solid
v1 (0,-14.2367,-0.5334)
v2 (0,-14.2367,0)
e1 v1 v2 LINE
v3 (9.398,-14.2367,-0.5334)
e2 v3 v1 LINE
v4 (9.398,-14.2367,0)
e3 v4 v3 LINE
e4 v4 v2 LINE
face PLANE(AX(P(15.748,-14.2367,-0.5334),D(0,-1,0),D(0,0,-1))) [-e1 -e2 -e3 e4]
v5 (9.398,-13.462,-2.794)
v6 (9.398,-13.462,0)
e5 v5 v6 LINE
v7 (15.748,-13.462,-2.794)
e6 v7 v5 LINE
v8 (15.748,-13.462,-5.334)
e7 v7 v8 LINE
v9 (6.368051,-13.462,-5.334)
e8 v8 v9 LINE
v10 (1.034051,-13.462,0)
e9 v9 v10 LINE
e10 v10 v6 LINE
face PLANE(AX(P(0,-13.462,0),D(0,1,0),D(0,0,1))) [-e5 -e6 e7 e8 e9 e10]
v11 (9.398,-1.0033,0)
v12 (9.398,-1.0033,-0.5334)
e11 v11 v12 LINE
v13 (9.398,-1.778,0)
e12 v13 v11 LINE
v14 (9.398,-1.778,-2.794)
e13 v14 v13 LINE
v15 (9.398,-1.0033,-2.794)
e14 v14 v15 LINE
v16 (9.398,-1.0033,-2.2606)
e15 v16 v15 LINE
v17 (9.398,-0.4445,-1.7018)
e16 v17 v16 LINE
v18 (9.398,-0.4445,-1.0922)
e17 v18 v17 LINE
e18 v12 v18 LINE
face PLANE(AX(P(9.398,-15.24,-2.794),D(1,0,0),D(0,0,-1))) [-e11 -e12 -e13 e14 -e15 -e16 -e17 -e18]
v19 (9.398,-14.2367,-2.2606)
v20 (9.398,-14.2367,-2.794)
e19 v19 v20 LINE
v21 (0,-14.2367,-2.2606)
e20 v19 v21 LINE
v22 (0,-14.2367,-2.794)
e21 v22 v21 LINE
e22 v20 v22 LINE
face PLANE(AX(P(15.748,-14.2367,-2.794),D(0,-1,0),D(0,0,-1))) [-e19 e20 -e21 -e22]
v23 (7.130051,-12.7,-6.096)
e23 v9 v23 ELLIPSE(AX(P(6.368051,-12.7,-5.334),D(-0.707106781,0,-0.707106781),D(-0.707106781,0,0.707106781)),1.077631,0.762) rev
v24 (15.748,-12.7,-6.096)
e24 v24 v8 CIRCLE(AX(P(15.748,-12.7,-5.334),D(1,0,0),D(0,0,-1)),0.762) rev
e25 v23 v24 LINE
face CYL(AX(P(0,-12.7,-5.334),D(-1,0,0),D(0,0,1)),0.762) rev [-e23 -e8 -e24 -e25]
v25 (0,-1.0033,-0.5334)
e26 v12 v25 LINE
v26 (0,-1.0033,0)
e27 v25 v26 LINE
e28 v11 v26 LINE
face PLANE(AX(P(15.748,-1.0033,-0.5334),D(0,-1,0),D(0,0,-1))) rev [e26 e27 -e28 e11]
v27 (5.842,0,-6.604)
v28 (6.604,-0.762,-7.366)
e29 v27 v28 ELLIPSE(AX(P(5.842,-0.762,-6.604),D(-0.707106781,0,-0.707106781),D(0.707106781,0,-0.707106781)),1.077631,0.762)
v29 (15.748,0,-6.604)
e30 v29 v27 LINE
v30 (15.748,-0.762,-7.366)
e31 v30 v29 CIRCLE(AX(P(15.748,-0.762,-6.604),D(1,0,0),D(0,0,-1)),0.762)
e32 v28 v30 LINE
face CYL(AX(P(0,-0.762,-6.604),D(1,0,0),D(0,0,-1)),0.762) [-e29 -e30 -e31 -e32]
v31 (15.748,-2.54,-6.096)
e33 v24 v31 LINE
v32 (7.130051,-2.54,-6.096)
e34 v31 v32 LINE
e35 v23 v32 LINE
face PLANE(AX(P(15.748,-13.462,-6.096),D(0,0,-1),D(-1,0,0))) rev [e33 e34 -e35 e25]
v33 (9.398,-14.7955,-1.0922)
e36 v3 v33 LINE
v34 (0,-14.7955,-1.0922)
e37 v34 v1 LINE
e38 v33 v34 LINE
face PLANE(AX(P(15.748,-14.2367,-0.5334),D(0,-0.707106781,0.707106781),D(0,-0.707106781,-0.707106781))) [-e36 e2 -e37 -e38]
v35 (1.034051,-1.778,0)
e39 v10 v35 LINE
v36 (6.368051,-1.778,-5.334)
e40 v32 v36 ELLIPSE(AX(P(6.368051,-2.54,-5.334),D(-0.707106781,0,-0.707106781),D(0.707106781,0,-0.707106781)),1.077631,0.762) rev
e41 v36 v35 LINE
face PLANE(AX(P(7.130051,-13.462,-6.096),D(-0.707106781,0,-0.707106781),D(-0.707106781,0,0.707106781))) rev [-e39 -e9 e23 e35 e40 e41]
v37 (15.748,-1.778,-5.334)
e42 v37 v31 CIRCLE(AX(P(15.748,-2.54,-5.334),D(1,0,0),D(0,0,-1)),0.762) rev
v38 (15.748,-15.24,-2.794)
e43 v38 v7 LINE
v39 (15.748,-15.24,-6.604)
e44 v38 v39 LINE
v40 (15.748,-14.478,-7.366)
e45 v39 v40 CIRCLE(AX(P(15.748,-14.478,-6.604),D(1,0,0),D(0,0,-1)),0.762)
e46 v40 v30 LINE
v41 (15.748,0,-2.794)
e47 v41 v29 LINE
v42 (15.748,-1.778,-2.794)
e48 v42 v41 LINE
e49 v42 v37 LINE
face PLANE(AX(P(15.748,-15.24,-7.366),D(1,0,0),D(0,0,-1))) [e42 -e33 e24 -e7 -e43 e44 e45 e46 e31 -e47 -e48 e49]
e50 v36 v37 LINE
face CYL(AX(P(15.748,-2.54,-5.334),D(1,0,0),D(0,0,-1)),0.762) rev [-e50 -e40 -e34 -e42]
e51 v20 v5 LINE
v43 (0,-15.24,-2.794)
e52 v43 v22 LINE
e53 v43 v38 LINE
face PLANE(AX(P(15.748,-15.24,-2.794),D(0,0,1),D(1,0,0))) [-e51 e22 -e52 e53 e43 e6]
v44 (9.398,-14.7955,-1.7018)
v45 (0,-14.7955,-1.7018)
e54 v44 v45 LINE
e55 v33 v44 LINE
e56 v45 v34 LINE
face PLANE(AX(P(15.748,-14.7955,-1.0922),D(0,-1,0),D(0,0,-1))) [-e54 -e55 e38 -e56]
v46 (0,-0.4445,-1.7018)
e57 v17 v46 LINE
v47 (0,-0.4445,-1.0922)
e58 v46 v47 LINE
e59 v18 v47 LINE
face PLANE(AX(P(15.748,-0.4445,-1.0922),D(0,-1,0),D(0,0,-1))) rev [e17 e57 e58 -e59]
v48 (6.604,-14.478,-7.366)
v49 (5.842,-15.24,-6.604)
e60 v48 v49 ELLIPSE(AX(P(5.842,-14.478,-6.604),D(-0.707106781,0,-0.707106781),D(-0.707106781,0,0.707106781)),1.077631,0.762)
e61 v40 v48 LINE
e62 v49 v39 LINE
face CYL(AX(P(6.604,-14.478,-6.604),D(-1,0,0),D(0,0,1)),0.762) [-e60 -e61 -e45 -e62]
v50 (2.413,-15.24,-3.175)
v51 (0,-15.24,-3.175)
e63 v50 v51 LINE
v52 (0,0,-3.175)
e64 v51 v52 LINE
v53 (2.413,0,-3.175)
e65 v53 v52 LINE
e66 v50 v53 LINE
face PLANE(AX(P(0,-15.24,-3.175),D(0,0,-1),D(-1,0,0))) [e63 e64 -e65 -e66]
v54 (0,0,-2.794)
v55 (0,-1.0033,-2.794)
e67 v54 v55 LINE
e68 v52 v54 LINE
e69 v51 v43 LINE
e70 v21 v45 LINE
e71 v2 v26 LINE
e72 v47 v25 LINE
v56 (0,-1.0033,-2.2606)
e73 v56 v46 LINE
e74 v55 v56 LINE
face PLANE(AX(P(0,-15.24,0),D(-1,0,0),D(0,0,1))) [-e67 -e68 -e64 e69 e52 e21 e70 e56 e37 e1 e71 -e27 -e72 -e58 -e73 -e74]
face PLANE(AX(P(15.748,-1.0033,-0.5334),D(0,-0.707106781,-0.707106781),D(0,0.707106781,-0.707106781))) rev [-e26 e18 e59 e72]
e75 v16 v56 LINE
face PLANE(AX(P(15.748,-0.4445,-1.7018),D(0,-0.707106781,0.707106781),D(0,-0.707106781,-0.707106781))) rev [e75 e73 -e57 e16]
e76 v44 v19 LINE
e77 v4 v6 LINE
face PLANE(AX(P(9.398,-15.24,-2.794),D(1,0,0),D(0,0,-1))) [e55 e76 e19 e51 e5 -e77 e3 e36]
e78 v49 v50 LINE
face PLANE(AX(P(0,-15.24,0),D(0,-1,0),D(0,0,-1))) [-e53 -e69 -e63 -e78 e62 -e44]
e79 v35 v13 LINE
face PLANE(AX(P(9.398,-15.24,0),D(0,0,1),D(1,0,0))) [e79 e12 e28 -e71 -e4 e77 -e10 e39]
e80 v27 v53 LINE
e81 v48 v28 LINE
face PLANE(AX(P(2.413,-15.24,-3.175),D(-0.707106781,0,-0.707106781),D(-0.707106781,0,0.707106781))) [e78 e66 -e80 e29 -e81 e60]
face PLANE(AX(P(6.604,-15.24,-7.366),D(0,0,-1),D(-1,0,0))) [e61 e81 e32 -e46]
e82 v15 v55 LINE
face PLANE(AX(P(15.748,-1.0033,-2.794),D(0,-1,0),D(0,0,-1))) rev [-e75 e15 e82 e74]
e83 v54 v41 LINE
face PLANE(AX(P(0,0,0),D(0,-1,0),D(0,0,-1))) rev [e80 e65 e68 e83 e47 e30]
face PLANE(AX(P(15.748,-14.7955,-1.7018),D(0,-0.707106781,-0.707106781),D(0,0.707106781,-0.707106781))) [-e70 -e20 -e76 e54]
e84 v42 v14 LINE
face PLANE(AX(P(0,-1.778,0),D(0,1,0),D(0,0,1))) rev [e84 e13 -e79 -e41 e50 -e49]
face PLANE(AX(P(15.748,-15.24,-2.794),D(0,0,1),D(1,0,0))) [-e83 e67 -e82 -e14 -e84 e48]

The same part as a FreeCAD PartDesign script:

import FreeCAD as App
import Part
import Sketcher
from FreeCAD import Vector
Q = App.Units.Quantity


def edges_at(feature, points):
    """Names of the edges that pass closest to the given points."""
    edges = feature.Shape.Edges
    near = lambda p: min(range(len(edges)), key=lambda i: edges[i].distToShape(Part.Vertex(*p))[0])
    return sorted({f"Edge{near(p) + 1}" for p in points})

doc = App.newDocument("Part")
body = doc.addObject("PartDesign::Body", "Body")

# Sketch on XZ plane
sketch1 = doc.addObject("Sketcher::SketchObject", "Sketch")
body.addObject(sketch1)
sketch1.AttachmentSupport = (doc.XZ_Plane, [""])
sketch1.MapMode = "FlatFace"
sketch1.addGeometry([
    Part.LineSegment(Vector(0, -3.2, 0), Vector(0, 0, 0)),  # 0
    Part.LineSegment(Vector(0, 0, 0), Vector(9.4, 0, 0)),  # 1
    Part.LineSegment(Vector(9.4, 0, 0), Vector(9.4, -2.8, 0)),  # 2
    Part.LineSegment(Vector(9.4, -2.8, 0), Vector(15.7, -2.8, 0)),  # 3
    Part.LineSegment(Vector(15.7, -2.8, 0), Vector(15.7, -7.4, 0)),  # 4
    Part.LineSegment(Vector(15.7, -7.4, 0), Vector(6.6, -7.4, 0)),  # 5
    Part.LineSegment(Vector(6.6, -7.4, 0), Vector(2.4, -3.2, 0)),  # 6
    Part.LineSegment(Vector(2.4, -3.2, 0), Vector(0, -3.2, 0)),  # 7
], False)
sketch1.addConstraint([
    Sketcher.Constraint("Coincident", 0, 2, 1, 1),
    Sketcher.Constraint("Coincident", 1, 2, 2, 1),
    Sketcher.Constraint("Coincident", 2, 2, 3, 1),
    Sketcher.Constraint("Coincident", 3, 2, 4, 1),
    Sketcher.Constraint("Coincident", 4, 2, 5, 1),
    Sketcher.Constraint("Coincident", 5, 2, 6, 1),
    Sketcher.Constraint("Coincident", 6, 2, 7, 1),
    Sketcher.Constraint("Coincident", 7, 2, 0, 1),
    Sketcher.Constraint("Vertical", 0),
    Sketcher.Constraint("Horizontal", 1),
    Sketcher.Constraint("Vertical", 2),
    Sketcher.Constraint("Horizontal", 3),
    Sketcher.Constraint("Vertical", 4),
    Sketcher.Constraint("Horizontal", 5),
    Sketcher.Constraint("Horizontal", 7),
    Sketcher.Constraint("Coincident", 0, 2, -1, 1),
    Sketcher.Constraint("Angle", 6, Q("135 deg")),
    Sketcher.Constraint("DistanceX", 1, 1, 1, 2, Q("0.37 in")),
    Sketcher.Constraint("DistanceX", 3, 1, 3, 2, Q("0.25 in")),
    Sketcher.Constraint("DistanceX", 5, 2, 5, 1, Q("0.36 in")),
    Sketcher.Constraint("DistanceY", 2, 2, 2, 1, Q("0.11 in")),
    Sketcher.Constraint("DistanceY", 4, 2, 4, 1, Q("0.18 in")),
    Sketcher.Constraint("DistanceX", 7, 2, 7, 1, Q("0.095 in")),
])
pad1 = doc.addObject("PartDesign::Pad", "Pad")
body.addObject(pad1)
pad1.Profile = sketch1
pad1.Length = Q("0.6 in")

# Sketch on YZ plane
sketch2 = doc.addObject("Sketcher::SketchObject", "Sketch001")
body.addObject(sketch2)
sketch2.AttachmentSupport = (doc.YZ_Plane, [""])
sketch2.MapMode = "FlatFace"
sketch2.addGeometry([
    Part.LineSegment(Vector(-1, 0, 0), Vector(0, 0, 0)),  # 0
    Part.LineSegment(Vector(0, 0, 0), Vector(0, -2.8, 0)),  # 1
    Part.LineSegment(Vector(0, -2.8, 0), Vector(-1, -2.8, 0)),  # 2
    Part.LineSegment(Vector(-1, -2.8, 0), Vector(-1, -2.3, 0)),  # 3
    Part.LineSegment(Vector(-1, -2.3, 0), Vector(-0.4, -1.7, 0)),  # 4
    Part.LineSegment(Vector(-0.4, -1.7, 0), Vector(-0.4, -1.1, 0)),  # 5
    Part.LineSegment(Vector(-0.4, -1.1, 0), Vector(-1, -0.5, 0)),  # 6
    Part.LineSegment(Vector(-1, -0.5, 0), Vector(-1, 0, 0)),  # 7
], False)
sketch2.addConstraint([
    Sketcher.Constraint("Coincident", 0, 2, 1, 1),
    Sketcher.Constraint("Coincident", 1, 2, 2, 1),
    Sketcher.Constraint("Coincident", 2, 2, 3, 1),
    Sketcher.Constraint("Coincident", 3, 2, 4, 1),
    Sketcher.Constraint("Coincident", 4, 2, 5, 1),
    Sketcher.Constraint("Coincident", 5, 2, 6, 1),
    Sketcher.Constraint("Coincident", 6, 2, 7, 1),
    Sketcher.Constraint("Coincident", 7, 2, 0, 1),
    Sketcher.Constraint("Horizontal", 0),
    Sketcher.Constraint("Vertical", 1),
    Sketcher.Constraint("Horizontal", 2),
    Sketcher.Constraint("Vertical", 3),
    Sketcher.Constraint("Vertical", 5),
    Sketcher.Constraint("Vertical", 7),
    Sketcher.Constraint("Coincident", 0, 2, -1, 1),
    Sketcher.Constraint("Perpendicular", 4, 6),
    Sketcher.Constraint("Vertical", 3, 2, 6, 2),
    Sketcher.Constraint("Equal", 3, 7),
    Sketcher.Constraint("Equal", 4, 6),
    Sketcher.Constraint("DistanceY", 1, 2, 1, 1, Q("0.11 in")),
    Sketcher.Constraint("DistanceY", 3, 1, 3, 2, Q("0.021 in")),
    Sketcher.Constraint("DistanceY", 5, 1, 5, 2, Q("0.024 in")),
    Sketcher.Constraint("DistanceX", 0, 1, 0, 2, Q("0.0395 in")),
])
pocket1 = doc.addObject("PartDesign::Pocket", "Pocket")
body.addObject(pocket1)
pocket1.Profile = sketch2
pocket1.Type = "ThroughAll"
pocket1.Reversed = True
doc.recompute()

datumplane = doc.addObject("PartDesign::Plane", "DatumPlane")
body.addObject(datumplane)
datumplane.AttachmentSupport = (doc.XZ_Plane, [""])
datumplane.MapMode = "FlatFace"
datumplane.AttachmentOffset = App.Placement(Vector(0, 0, 0.3 * 25.4), App.Rotation())
mirrored = doc.addObject("PartDesign::Mirrored", "Mirrored")
body.addObject(mirrored)
mirrored.Originals = [pocket1]
mirrored.MirrorPlane = (datumplane, [""])
body.Tip = mirrored

# Sketch on XZ plane
sketch3 = doc.addObject("Sketcher::SketchObject", "Sketch002")
body.addObject(sketch3)
sketch3.AttachmentSupport = (doc.XZ_Plane, [""])
sketch3.MapMode = "FlatFace"
sketch3.AttachmentOffset = App.Placement(Vector(0, 0, 0.3 * 25.4), App.Rotation())
sketch3.addGeometry([
    Part.LineSegment(Vector(16, -6, 0), Vector(7, -6, 0)),
    Part.LineSegment(Vector(7, -6, 0), Vector(1, 0, 0)),
    Part.LineSegment(Vector(1, 0, 0), Vector(16, 0, 0)),
    Part.LineSegment(Vector(16, 0, 0), Vector(16, -6, 0)),
], False)
sketch3.addConstraint([
    Sketcher.Constraint("Coincident", 0, 2, 1, 1),
    Sketcher.Constraint("Coincident", 1, 2, 2, 1),
    Sketcher.Constraint("Coincident", 2, 2, 3, 1),
    Sketcher.Constraint("Coincident", 3, 2, 0, 1),
    Sketcher.Constraint("Horizontal", 0),
    Sketcher.Constraint("Horizontal", 2),
    Sketcher.Constraint("Vertical", 3),
    Sketcher.Constraint("PointOnObject", 1, 2, -1),
    Sketcher.Constraint("Angle", 1, Q("135 deg")),
    Sketcher.Constraint("DistanceY", 3, 2, 3, 1, Q("0.24 in")),
    Sketcher.Constraint("DistanceX", -1, 1, 2, 2, Q("0.62 in")),
    Sketcher.Constraint("DistanceX", 0, 2, 0, 1, 8.617949),
])
pocket2 = doc.addObject("PartDesign::Pocket", "Pocket001")
body.addObject(pocket2)
pocket2.Profile = sketch3
pocket2.Length = Q("0.46 in")
pocket2.Midplane = True
doc.recompute()

fillet = doc.addObject("PartDesign::Fillet", "Fillet")
body.addObject(fillet)
fillet.Base = (pocket2, edges_at(pocket2, [
    (11.439, -13.462, -6.096),
    (11.439, -1.778, -6.096),
    (11.176, -15.24, -7.366),
    (11.176, 0, -7.366),
]))
fillet.Radius = Q("0.03 in")

doc.recompute()
